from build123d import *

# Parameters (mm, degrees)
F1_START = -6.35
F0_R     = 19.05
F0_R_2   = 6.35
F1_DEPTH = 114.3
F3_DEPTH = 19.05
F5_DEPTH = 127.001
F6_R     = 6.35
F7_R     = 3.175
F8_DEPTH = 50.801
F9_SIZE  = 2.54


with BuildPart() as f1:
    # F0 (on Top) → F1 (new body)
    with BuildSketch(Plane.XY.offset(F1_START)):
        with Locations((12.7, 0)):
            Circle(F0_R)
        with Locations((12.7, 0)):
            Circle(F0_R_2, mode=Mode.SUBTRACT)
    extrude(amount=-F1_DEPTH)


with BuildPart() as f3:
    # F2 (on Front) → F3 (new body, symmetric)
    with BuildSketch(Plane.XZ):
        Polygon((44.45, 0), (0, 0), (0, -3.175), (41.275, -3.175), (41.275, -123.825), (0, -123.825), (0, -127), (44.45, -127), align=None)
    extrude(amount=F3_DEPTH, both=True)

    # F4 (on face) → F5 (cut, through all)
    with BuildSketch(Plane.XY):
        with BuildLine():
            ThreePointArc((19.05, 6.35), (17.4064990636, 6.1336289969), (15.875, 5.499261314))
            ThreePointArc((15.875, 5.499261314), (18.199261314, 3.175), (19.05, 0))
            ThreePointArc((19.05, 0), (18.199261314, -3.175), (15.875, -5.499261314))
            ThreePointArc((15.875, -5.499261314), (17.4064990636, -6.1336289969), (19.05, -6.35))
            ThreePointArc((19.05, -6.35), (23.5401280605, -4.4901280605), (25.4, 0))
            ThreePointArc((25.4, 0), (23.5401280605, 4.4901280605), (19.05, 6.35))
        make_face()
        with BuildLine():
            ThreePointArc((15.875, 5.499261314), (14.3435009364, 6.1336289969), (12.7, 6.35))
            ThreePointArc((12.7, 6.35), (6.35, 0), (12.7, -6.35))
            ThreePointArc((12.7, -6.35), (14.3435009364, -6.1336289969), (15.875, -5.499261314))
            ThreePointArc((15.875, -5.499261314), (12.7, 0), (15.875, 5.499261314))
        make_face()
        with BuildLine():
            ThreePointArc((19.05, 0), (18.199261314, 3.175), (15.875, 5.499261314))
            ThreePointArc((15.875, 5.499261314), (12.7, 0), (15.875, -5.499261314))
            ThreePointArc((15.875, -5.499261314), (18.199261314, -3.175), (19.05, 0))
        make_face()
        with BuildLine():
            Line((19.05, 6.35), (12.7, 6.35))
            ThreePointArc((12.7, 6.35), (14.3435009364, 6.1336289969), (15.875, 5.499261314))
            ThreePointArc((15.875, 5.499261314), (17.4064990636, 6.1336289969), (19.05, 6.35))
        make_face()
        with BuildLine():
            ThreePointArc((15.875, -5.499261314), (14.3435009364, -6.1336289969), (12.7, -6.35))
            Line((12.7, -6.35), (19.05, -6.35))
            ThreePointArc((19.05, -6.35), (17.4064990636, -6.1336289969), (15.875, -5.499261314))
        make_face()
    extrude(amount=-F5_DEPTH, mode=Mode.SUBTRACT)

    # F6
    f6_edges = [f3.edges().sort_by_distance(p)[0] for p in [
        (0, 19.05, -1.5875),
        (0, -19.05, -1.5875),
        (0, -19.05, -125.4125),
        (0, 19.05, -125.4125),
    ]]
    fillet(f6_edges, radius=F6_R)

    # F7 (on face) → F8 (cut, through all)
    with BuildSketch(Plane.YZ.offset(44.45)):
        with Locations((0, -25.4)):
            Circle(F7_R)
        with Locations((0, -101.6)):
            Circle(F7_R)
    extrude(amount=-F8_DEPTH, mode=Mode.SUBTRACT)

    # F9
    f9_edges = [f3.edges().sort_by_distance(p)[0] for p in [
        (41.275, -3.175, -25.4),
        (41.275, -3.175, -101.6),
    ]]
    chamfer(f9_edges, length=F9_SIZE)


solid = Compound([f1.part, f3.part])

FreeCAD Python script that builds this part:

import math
import FreeCAD as App
import Part
import Sketcher

V = App.Vector
Q = App.Units.Quantity


def edges_at(feature, points):
    """Names of the edges that pass closest to the given points."""
    edges = feature.Shape.Edges
    near = lambda p: min(range(len(edges)), key=lambda i: edges[i].distToShape(Part.Vertex(*p))[0])
    return sorted({f"Edge{near(p) + 1}" for p in points})

doc = App.newDocument("Part")
body = doc.addObject("PartDesign::Body", "Body")

# Sketch on XY plane
sketch1 = body.newObject("Sketcher::SketchObject", "Sketch")
sketch1.AttachmentSupport = (doc.getObject("XY_Plane"), [""])
sketch1.MapMode = "FlatFace"
sketch1.AttachmentOffset = App.Placement(V(0, 0, -0.25 * 25.4), App.Rotation())
sketch1.addGeometry([
    Part.Circle(V(13, 0, 0), V(0, 0, 1), 19),
    Part.Circle(V(13, 0, 0), V(0, 0, 1), 6),
], False)
sketch1.addConstraint([
    Sketcher.Constraint("Coincident", 1, 3, 0, 3),
    Sketcher.Constraint("PointOnObject", 0, 3, -1),
    Sketcher.Constraint("Diameter", 0, Q("1.5 in")),
    Sketcher.Constraint("Diameter", 1, Q("0.5 in")),
    Sketcher.Constraint("DistanceX", -1, 1, 0, 3, Q("0.5 in")),
])
pad1 = body.newObject("PartDesign::Pad", "Pad")
pad1.Profile = sketch1
pad1.Length = Q("4.5 in")
pad1.Reversed = True
body2 = doc.addObject("PartDesign::Body", "Body001")

# Sketch on XZ plane
sketch2 = body2.newObject("Sketcher::SketchObject", "Sketch001")
sketch2.AttachmentSupport = (doc.getObject("XZ_Plane001"), [""])
sketch2.MapMode = "FlatFace"
sketch2.addGeometry([
    Part.LineSegment(V(44.5, 0, 0), V(0, 0, 0)),  # 0
    Part.LineSegment(V(0, 0, 0), V(0, -3.2, 0)),  # 1
    Part.LineSegment(V(0, -3.2, 0), V(41.3, -3.2, 0)),  # 2
    Part.LineSegment(V(41.3, -3.2, 0), V(41.3, -123.8, 0)),  # 3
    Part.LineSegment(V(41.3, -123.8, 0), V(0, -123.8, 0)),  # 4
    Part.LineSegment(V(0, -123.8, 0), V(0, -127, 0)),  # 5
    Part.LineSegment(V(0, -127, 0), V(44.5, -127, 0)),  # 6
    Part.LineSegment(V(44.5, -127, 0), V(44.5, 0, 0)),  # 7
], False)
sketch2.addConstraint([
    Sketcher.Constraint("Coincident", 0, 2, 1, 1),
    Sketcher.Constraint("Coincident", 1, 2, 2, 1),
    Sketcher.Constraint("Coincident", 2, 2, 3, 1),
    Sketcher.Constraint("Coincident", 3, 2, 4, 1),
    Sketcher.Constraint("Coincident", 4, 2, 5, 1),
    Sketcher.Constraint("Coincident", 5, 2, 6, 1),
    Sketcher.Constraint("Coincident", 6, 2, 7, 1),
    Sketcher.Constraint("Coincident", 7, 2, 0, 1),
    Sketcher.Constraint("Horizontal", 0),
    Sketcher.Constraint("Vertical", 1),
    Sketcher.Constraint("Horizontal", 2),
    Sketcher.Constraint("Vertical", 3),
    Sketcher.Constraint("Horizontal", 4),
    Sketcher.Constraint("Vertical", 5),
    Sketcher.Constraint("Horizontal", 6),
    Sketcher.Constraint("Vertical", 7),
    Sketcher.Constraint("Coincident", 0, 2, -1, 1),
    Sketcher.Constraint("PointOnObject", 4, 2, -2),
    Sketcher.Constraint("Equal", 1, 5),
    Sketcher.Constraint("DistanceY", 7, 1, 7, 2, Q("5 in")),
    Sketcher.Constraint("DistanceX", 0, 2, 0, 1, Q("1.75 in")),
    Sketcher.Constraint("DistanceY", 3, 2, 3, 1, Q("4.75 in")),
    Sketcher.Constraint("DistanceX", 2, 1, 2, 2, Q("1.625 in")),
])
pad2 = body2.newObject("PartDesign::Pad", "Pad001")
pad2.Profile = sketch2
pad2.Length = Q("1.5 in")
pad2.Midplane = True

# Sketch on XY plane
sketch3 = body2.newObject("Sketcher::SketchObject", "Sketch002")
sketch3.AttachmentSupport = (doc.getObject("XY_Plane001"), [""])
sketch3.MapMode = "FlatFace"
sketch3.addGeometry([
    Part.ArcOfCircle(Part.Circle(V(13, 0, 0), V(0, 0, 1), 6), math.radians(90), math.radians(270)),  # 0
    Part.LineSegment(V(13, -6, 0), V(19, -6, 0)),  # 1
    Part.ArcOfCircle(Part.Circle(V(19, 0, 0), V(0, 0, 1), 6), math.radians(-90), math.radians(0)),  # 2
    Part.ArcOfCircle(Part.Circle(V(19, 0, 0), V(0, 0, 1), 6), math.radians(0), math.radians(90)),  # 3
    Part.LineSegment(V(19, 6, 0), V(13, 6, 0)),  # 4
], False)
sketch3.addConstraint([
    Sketcher.Constraint("Tangent", 0, 2, 1, 1),
    Sketcher.Constraint("Tangent", 1, 2, 2, 1),
    Sketcher.Constraint("Tangent", 2, 2, 3, 1),
    Sketcher.Constraint("Tangent", 3, 2, 4, 1),
    Sketcher.Constraint("Tangent", 4, 2, 0, 1),
    Sketcher.Constraint("Horizontal", 1),
    Sketcher.Constraint("Horizontal", 4),
    Sketcher.Constraint("Equal", 0, 2),
    Sketcher.Constraint("PointOnObject", 0, 3, -1),
    Sketcher.Constraint("PointOnObject", 2, 2, -1),
    Sketcher.Constraint("Radius", 0, Q("0.25 in")),
    Sketcher.Constraint("DistanceX", -1, 1, 2, 2, Q("1 in")),
    Sketcher.Constraint("DistanceX", 1, 1, 1, 2, Q("0.25 in")),
])
pocket1 = body2.newObject("PartDesign::Pocket", "Pocket")
pocket1.Profile = sketch3
pocket1.Type = "ThroughAll"
doc.recompute()

fillet = body2.newObject("PartDesign::Fillet", "Fillet")
fillet.Base = (pocket1, edges_at(pocket1, [
    (0, 19.05, -1.587),
    (0, -19.05, -1.587),
    (0, -19.05, -125.412),
    (0, 19.05, -125.412),
]))
fillet.Radius = Q("0.25 in")

# Sketch on YZ plane
sketch4 = body2.newObject("Sketcher::SketchObject", "Sketch003")
sketch4.AttachmentSupport = (doc.getObject("YZ_Plane001"), [""])
sketch4.MapMode = "FlatFace"
sketch4.AttachmentOffset = App.Placement(V(0, 0, 1.75 * 25.4), App.Rotation())
sketch4.addGeometry([
    Part.Circle(V(0, -25.4, 0), V(0, 0, 1), 3.2),
    Part.Circle(V(0, -101.6, 0), V(0, 0, 1), 3.2),
], False)
sketch4.addConstraint([
    Sketcher.Constraint("Equal", 0, 1),
    Sketcher.Constraint("PointOnObject", 0, 3, -2),
    Sketcher.Constraint("PointOnObject", 1, 3, -2),
    Sketcher.Constraint("Diameter", 0, Q("0.25 in")),
    Sketcher.Constraint("DistanceY", 0, 3, -1, 1, Q("1 in")),
    Sketcher.Constraint("DistanceY", 1, 3, -1, 1, Q("4 in")),
])
pocket2 = body2.newObject("PartDesign::Pocket", "Pocket001")
pocket2.Profile = sketch4
pocket2.Type = "ThroughAll"
doc.recompute()

chamfer = body2.newObject("PartDesign::Chamfer", "Chamfer")
chamfer.Base = (pocket2, edges_at(pocket2, [(41.275, -3.175, -25.4), (41.275, -3.175, -101.6)]))
chamfer.Size = Q("0.1 in")

doc.recompute()
